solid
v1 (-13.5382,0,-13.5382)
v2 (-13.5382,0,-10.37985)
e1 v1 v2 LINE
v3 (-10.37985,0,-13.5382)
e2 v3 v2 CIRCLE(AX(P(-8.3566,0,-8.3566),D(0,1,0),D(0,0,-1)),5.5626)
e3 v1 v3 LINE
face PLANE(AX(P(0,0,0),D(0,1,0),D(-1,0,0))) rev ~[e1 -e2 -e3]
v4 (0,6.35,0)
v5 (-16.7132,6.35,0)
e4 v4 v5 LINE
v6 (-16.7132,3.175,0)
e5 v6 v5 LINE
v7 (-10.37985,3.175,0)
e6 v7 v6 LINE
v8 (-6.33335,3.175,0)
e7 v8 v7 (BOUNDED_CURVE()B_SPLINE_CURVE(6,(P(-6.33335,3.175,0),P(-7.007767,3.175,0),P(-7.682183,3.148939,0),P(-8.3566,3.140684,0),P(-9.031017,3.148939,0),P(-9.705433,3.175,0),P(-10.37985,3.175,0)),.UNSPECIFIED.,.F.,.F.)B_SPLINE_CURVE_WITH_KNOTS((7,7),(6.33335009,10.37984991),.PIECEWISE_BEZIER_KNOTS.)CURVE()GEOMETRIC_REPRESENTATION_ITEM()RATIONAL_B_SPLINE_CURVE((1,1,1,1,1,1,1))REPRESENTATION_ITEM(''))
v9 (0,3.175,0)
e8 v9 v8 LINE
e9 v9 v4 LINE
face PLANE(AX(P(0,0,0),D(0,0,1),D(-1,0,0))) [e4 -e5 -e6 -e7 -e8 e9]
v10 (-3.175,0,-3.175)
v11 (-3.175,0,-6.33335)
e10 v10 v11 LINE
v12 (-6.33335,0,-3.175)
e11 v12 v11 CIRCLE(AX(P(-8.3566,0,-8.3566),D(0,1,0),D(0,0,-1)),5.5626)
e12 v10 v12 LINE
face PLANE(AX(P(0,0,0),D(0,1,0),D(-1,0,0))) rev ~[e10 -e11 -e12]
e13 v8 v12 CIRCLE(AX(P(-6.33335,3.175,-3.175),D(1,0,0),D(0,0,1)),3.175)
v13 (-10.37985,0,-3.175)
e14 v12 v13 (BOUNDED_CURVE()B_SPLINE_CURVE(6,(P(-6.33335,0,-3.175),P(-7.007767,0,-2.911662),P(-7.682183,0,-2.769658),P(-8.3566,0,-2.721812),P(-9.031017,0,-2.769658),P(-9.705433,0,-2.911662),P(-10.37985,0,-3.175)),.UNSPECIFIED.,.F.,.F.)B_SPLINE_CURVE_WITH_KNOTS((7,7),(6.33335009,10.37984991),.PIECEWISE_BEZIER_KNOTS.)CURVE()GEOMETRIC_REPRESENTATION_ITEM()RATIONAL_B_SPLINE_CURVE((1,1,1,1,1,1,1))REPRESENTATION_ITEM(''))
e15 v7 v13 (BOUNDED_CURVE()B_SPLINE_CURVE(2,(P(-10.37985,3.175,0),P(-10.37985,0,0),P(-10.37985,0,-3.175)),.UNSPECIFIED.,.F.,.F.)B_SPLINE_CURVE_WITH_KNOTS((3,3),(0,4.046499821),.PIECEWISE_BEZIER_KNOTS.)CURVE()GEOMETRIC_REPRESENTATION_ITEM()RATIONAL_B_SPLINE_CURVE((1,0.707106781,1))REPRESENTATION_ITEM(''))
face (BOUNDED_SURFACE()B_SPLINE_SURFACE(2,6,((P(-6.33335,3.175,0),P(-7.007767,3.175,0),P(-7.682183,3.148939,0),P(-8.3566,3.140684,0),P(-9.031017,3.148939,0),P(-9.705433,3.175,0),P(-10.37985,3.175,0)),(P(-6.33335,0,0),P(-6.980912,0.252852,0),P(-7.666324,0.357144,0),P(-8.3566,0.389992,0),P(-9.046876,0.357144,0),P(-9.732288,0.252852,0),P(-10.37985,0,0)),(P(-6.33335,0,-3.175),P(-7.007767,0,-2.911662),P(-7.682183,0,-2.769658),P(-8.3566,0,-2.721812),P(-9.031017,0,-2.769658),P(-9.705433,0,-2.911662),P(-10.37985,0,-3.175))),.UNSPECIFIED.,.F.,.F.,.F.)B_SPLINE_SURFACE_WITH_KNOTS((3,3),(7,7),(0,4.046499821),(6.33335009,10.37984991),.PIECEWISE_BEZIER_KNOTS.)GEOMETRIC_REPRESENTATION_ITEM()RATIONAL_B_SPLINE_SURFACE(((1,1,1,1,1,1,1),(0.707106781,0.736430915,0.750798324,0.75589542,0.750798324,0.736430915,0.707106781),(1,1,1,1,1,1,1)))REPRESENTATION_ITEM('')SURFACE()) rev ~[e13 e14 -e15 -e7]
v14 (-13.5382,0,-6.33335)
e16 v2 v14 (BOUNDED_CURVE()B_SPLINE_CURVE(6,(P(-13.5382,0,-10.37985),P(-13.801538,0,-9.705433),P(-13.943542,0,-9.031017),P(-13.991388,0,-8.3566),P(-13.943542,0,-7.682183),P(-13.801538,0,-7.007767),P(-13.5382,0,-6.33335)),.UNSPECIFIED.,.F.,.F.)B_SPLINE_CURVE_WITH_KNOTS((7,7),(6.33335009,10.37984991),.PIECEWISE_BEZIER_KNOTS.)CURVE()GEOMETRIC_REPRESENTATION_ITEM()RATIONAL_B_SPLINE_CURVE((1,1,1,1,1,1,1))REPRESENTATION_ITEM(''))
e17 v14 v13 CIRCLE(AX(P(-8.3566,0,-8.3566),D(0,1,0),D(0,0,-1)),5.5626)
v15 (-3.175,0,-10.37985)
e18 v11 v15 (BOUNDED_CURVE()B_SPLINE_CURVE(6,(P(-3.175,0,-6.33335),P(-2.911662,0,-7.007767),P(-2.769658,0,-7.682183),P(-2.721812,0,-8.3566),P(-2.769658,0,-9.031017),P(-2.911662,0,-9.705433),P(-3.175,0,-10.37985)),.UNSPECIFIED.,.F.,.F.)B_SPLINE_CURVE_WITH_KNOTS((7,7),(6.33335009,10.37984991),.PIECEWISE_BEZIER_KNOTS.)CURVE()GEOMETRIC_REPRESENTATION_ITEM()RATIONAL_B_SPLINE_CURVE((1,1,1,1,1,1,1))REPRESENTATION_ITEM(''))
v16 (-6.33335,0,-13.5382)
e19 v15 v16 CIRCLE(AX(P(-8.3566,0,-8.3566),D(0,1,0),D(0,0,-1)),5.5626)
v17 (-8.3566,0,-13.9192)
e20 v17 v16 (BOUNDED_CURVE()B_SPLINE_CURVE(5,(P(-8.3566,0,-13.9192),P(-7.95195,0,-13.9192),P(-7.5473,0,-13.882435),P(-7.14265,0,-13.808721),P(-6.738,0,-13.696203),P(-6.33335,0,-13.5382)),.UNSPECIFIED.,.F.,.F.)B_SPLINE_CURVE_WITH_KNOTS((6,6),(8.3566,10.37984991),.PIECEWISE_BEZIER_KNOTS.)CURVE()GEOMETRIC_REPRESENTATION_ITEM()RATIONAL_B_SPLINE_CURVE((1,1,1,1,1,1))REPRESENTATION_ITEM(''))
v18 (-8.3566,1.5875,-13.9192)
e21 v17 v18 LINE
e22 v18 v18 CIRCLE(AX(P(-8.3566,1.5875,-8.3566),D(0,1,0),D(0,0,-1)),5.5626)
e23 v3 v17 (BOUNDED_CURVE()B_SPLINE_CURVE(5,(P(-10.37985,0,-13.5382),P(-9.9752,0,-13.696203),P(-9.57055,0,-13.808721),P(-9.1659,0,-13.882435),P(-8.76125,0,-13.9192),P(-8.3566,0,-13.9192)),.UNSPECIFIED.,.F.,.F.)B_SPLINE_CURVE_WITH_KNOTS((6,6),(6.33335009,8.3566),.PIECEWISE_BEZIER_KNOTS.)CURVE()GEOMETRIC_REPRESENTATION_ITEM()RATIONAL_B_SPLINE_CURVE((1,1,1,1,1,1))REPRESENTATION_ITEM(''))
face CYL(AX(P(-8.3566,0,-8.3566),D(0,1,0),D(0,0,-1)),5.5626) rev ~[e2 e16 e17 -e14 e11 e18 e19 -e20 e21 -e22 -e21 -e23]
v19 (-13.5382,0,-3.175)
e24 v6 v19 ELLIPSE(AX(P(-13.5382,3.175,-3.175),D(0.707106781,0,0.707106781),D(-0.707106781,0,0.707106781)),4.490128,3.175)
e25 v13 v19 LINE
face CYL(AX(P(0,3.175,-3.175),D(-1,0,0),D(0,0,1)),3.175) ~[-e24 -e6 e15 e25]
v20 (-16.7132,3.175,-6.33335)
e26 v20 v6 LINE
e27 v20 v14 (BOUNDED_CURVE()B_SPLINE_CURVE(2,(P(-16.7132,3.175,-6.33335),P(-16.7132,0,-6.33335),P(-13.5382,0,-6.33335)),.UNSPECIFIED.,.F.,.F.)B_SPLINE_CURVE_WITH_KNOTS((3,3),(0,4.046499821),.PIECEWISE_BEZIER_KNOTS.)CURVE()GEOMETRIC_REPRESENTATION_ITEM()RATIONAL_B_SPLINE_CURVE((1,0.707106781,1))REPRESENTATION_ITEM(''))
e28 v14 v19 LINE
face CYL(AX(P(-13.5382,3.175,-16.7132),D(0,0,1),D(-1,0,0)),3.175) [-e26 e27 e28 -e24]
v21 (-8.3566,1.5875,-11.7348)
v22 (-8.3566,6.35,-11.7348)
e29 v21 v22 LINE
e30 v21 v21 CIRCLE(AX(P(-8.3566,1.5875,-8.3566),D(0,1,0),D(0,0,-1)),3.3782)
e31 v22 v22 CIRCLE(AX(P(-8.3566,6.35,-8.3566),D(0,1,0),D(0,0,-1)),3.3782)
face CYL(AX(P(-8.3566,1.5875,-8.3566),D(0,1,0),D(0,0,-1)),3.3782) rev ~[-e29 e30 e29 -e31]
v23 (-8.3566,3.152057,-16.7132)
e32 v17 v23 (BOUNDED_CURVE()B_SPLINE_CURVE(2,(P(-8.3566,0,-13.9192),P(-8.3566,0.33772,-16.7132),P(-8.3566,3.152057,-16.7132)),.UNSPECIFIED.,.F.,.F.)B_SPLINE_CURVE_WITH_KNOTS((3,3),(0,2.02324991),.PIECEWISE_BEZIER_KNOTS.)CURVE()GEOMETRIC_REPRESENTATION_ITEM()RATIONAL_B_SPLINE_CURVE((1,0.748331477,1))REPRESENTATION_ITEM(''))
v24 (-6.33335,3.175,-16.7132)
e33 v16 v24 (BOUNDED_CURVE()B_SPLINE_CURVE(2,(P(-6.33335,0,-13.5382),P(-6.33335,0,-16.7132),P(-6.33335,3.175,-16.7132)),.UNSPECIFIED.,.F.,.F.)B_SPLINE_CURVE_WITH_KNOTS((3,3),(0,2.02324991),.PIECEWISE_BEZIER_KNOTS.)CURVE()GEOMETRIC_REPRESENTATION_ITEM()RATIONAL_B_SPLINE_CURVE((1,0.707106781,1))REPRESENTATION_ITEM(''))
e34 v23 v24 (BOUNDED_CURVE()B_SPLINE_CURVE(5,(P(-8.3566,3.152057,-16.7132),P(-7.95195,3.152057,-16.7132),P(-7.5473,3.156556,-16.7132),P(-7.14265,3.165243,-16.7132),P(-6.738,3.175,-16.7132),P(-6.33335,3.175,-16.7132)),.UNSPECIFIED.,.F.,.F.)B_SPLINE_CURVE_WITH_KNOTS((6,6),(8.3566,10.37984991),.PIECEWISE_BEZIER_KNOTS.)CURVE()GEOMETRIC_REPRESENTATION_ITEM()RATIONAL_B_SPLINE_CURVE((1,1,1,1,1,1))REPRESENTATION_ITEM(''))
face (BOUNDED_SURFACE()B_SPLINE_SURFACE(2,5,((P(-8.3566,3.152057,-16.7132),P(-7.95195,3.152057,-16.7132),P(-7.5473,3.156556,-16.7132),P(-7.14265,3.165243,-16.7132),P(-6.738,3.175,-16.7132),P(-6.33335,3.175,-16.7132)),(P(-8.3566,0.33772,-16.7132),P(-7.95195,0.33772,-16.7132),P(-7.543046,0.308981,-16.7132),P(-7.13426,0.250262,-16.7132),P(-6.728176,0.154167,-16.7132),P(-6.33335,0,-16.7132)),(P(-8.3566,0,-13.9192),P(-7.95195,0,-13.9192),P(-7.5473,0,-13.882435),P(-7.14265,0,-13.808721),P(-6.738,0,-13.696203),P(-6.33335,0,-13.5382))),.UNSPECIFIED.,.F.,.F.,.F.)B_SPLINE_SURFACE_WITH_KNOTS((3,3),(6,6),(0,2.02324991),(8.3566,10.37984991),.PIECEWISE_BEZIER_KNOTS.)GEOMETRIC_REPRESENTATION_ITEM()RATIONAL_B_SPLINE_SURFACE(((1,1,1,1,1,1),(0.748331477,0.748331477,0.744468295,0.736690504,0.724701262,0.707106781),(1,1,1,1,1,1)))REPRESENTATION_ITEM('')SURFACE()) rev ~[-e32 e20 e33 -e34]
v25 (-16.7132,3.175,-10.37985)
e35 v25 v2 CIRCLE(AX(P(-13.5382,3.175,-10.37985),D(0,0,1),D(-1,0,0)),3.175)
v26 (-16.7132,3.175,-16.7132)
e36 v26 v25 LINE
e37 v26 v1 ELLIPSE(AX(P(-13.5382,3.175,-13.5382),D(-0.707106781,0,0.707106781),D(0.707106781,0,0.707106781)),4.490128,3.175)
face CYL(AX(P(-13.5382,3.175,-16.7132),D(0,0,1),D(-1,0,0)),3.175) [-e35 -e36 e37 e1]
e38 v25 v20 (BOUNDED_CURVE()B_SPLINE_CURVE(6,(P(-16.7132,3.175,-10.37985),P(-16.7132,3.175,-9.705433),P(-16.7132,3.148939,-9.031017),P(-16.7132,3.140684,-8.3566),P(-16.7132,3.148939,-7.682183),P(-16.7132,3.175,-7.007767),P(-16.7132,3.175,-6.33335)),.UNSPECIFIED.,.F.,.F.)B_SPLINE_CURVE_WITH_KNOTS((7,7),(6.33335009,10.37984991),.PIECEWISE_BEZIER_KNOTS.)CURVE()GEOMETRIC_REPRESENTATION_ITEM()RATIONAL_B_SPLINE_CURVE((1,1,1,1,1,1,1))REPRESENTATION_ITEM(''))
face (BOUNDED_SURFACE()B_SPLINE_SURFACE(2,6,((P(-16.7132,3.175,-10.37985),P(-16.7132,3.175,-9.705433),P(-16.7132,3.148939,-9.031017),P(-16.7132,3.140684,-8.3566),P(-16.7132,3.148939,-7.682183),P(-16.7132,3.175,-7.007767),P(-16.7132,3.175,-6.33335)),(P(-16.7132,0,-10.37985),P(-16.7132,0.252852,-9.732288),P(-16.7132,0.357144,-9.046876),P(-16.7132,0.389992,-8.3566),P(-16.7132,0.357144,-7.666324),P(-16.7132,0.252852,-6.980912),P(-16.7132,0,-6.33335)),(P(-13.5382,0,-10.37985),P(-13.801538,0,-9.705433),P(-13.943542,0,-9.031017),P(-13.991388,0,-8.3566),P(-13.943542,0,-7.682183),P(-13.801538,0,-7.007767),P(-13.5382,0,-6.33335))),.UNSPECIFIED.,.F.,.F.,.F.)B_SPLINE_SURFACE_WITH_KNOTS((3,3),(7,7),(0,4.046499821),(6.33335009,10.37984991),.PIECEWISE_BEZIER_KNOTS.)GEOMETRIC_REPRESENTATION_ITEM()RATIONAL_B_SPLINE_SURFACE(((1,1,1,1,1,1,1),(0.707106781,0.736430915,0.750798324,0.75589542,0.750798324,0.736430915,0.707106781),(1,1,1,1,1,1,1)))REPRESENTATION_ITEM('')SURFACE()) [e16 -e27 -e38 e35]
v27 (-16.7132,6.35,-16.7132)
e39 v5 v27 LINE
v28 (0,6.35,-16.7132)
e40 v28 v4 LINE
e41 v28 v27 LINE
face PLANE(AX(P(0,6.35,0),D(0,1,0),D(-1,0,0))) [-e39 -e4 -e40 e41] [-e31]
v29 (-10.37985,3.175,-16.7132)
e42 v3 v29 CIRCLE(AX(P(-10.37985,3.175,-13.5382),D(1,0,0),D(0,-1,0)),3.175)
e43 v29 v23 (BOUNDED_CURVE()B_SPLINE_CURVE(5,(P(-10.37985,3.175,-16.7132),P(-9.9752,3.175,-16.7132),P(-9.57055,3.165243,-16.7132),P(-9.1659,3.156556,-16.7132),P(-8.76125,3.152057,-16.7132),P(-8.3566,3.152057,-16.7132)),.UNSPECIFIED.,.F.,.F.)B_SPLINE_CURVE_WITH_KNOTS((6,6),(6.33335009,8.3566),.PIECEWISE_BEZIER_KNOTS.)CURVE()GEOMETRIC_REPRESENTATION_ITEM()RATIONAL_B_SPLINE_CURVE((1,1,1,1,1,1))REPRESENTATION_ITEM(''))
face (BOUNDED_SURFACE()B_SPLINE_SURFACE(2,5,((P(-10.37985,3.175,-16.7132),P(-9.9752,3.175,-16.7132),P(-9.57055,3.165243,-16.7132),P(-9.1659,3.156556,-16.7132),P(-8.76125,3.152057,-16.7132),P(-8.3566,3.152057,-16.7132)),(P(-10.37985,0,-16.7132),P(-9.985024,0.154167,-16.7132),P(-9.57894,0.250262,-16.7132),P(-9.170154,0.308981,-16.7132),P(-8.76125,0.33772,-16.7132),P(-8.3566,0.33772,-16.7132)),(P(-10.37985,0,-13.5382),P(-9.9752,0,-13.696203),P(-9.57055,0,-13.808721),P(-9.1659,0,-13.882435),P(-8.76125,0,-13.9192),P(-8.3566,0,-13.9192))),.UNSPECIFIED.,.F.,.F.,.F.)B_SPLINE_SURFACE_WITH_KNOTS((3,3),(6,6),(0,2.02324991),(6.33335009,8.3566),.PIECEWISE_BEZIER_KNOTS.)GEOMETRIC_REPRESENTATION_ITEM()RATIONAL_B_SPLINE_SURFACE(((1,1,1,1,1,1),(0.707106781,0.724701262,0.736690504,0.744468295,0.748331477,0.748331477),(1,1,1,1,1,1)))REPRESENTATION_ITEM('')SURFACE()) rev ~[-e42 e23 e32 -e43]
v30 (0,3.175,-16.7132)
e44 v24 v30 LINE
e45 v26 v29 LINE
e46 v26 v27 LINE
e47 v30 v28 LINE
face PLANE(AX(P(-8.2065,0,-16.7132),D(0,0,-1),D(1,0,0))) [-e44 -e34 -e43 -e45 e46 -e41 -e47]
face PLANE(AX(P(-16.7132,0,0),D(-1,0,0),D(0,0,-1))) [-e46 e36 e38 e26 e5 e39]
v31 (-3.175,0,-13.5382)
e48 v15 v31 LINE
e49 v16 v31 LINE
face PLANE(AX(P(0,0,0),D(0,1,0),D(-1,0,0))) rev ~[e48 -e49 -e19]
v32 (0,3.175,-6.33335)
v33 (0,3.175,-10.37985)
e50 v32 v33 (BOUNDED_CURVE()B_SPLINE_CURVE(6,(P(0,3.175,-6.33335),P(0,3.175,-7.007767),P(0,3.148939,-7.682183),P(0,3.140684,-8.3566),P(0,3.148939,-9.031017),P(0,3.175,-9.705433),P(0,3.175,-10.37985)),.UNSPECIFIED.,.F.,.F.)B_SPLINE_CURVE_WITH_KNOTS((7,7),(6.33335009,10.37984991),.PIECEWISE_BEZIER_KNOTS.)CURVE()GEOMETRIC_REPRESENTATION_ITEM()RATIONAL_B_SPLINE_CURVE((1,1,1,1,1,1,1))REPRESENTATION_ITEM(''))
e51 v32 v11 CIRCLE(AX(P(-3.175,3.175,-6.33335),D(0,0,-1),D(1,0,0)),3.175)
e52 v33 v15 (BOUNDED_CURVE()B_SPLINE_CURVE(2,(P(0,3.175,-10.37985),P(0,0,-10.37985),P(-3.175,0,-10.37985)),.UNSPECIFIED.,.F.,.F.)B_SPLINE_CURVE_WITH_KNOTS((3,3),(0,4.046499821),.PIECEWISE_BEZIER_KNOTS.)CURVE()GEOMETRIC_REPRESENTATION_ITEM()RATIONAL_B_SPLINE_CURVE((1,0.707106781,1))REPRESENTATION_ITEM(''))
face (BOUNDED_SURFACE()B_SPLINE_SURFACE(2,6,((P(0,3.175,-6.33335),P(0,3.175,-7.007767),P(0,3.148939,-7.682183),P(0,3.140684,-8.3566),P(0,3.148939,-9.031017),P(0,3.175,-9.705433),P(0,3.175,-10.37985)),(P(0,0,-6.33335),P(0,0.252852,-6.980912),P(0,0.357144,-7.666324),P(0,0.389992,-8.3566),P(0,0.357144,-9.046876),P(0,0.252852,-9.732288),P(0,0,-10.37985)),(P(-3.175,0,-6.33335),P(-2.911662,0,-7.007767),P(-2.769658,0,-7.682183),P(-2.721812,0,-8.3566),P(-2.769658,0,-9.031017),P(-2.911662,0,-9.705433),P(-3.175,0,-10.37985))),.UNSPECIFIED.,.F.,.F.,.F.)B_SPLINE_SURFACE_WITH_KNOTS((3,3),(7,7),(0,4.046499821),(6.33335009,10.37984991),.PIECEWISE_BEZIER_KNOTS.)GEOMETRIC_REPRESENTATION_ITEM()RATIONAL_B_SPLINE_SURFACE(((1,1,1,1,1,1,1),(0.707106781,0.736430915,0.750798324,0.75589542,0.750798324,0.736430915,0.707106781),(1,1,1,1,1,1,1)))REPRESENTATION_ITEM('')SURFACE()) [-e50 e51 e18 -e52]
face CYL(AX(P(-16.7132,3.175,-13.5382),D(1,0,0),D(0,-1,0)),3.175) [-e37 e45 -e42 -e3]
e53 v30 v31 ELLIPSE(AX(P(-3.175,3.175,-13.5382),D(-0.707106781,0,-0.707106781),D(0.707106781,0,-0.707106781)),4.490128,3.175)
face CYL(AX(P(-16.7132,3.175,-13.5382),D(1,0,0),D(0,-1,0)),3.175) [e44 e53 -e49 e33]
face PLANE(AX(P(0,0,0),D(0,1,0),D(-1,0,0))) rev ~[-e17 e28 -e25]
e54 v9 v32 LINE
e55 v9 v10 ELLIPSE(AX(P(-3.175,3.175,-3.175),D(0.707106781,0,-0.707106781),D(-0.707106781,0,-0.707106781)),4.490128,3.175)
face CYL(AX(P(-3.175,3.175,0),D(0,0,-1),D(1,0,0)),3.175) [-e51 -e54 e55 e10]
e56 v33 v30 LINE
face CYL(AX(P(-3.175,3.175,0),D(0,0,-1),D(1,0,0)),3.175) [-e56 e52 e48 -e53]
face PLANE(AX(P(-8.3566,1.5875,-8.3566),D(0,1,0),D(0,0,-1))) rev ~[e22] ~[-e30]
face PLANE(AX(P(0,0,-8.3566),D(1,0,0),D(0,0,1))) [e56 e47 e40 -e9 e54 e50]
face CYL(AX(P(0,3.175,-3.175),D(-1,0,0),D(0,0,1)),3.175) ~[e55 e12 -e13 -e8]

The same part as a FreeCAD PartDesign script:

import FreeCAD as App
import Part
import Sketcher
Q = App.Units.Quantity


def edges_at(feature, points):
    """Names of the edges that pass closest to the given points."""
    edges = feature.Shape.Edges
    near = lambda p: min(range(len(edges)), key=lambda i: edges[i].distToShape(Part.Vertex(*p))[0])
    return sorted({f"Edge{near(p) + 1}" for p in points})


def add_polygon(sketch, points):
    """Adds a closed chain of lines whose ends are joined by coincident constraints."""
    first, n = sketch.GeometryCount, len(points)
    for a, b in zip(points, points[1:] + points[:1]):
        sketch.addGeometry(Part.LineSegment(App.Vector(*a, 0), App.Vector(*b, 0)), False)
    for i in range(n):
        sketch.addConstraint(Sketcher.Constraint("Coincident", first + i, 2, first + (i + 1) % n, 1))

doc = App.newDocument("Part")
body = doc.addObject("PartDesign::Body", "Body")

# Sketch on XZ plane
sketch1 = body.newObject("Sketcher::SketchObject", "Sketch")
sketch1.AttachmentSupport = (doc.getObject("XZ_Plane"), [""])
sketch1.MapMode = "FlatFace"
add_polygon(sketch1, [(-16.7132, 0), (0, 0), (0, -16.7132), (-16.7132, -16.7132)])  # lines 0-3
sketch1.addConstraint([
    Sketcher.Constraint("Horizontal", 0),
    Sketcher.Constraint("Vertical", 1),
    Sketcher.Constraint("Horizontal", 2),
    Sketcher.Constraint("Vertical", 3),
    Sketcher.Constraint("Coincident", 0, 2, -1, 1),
    Sketcher.Constraint("Equal", 2, 1),
    Sketcher.Constraint("DistanceX", 0, 1, 0, 2, Q("0.658 in")),
])
pad1 = body.newObject("PartDesign::Pad", "Pad")
pad1.Profile = sketch1
pad1.Length = Q("0.25 in")
pad1.Reversed = True

# Sketch on XZ plane
sketch2 = body.newObject("Sketcher::SketchObject", "Sketch001")
sketch2.AttachmentSupport = (doc.getObject("XZ_Plane"), [""])
sketch2.MapMode = "FlatFace"
sketch2.addGeometry(Part.Circle(App.Vector(-8.3566, -8.3566, 0), App.Vector(0, 0, 1), 3.3782), False)
sketch2.addConstraint([
    Sketcher.Constraint("Diameter", 0, Q("0.266 in")),
    Sketcher.Constraint("DistanceX", 0, 3, -1, 1, Q("0.329 in")),
    Sketcher.Constraint("DistanceY", 0, 3, -1, 1, Q("0.329 in")),
])
doc.recompute()
hole = body.newObject("PartDesign::Hole", "Hole")
hole.Profile = sketch2
hole.ThreadType = "None"
hole.Diameter = Q("0.266 in")
hole.DepthType = "ThroughAll"
hole.HoleCutType = "Counterbore"
hole.HoleCutDiameter = Q("0.438 in")
hole.HoleCutDepth = Q("0.0625 in")
doc.recompute()

fillet = body.newObject("PartDesign::Fillet", "Fillet")
fillet.Base = (hole, edges_at(hole, [
    (-8.357, 0, 0),
    (-16.713, 0, -8.357),
    (0, 0, -8.357),
    (-8.357, 0, -16.713),
]))
fillet.Radius = Q("0.125 in")

doc.recompute()
